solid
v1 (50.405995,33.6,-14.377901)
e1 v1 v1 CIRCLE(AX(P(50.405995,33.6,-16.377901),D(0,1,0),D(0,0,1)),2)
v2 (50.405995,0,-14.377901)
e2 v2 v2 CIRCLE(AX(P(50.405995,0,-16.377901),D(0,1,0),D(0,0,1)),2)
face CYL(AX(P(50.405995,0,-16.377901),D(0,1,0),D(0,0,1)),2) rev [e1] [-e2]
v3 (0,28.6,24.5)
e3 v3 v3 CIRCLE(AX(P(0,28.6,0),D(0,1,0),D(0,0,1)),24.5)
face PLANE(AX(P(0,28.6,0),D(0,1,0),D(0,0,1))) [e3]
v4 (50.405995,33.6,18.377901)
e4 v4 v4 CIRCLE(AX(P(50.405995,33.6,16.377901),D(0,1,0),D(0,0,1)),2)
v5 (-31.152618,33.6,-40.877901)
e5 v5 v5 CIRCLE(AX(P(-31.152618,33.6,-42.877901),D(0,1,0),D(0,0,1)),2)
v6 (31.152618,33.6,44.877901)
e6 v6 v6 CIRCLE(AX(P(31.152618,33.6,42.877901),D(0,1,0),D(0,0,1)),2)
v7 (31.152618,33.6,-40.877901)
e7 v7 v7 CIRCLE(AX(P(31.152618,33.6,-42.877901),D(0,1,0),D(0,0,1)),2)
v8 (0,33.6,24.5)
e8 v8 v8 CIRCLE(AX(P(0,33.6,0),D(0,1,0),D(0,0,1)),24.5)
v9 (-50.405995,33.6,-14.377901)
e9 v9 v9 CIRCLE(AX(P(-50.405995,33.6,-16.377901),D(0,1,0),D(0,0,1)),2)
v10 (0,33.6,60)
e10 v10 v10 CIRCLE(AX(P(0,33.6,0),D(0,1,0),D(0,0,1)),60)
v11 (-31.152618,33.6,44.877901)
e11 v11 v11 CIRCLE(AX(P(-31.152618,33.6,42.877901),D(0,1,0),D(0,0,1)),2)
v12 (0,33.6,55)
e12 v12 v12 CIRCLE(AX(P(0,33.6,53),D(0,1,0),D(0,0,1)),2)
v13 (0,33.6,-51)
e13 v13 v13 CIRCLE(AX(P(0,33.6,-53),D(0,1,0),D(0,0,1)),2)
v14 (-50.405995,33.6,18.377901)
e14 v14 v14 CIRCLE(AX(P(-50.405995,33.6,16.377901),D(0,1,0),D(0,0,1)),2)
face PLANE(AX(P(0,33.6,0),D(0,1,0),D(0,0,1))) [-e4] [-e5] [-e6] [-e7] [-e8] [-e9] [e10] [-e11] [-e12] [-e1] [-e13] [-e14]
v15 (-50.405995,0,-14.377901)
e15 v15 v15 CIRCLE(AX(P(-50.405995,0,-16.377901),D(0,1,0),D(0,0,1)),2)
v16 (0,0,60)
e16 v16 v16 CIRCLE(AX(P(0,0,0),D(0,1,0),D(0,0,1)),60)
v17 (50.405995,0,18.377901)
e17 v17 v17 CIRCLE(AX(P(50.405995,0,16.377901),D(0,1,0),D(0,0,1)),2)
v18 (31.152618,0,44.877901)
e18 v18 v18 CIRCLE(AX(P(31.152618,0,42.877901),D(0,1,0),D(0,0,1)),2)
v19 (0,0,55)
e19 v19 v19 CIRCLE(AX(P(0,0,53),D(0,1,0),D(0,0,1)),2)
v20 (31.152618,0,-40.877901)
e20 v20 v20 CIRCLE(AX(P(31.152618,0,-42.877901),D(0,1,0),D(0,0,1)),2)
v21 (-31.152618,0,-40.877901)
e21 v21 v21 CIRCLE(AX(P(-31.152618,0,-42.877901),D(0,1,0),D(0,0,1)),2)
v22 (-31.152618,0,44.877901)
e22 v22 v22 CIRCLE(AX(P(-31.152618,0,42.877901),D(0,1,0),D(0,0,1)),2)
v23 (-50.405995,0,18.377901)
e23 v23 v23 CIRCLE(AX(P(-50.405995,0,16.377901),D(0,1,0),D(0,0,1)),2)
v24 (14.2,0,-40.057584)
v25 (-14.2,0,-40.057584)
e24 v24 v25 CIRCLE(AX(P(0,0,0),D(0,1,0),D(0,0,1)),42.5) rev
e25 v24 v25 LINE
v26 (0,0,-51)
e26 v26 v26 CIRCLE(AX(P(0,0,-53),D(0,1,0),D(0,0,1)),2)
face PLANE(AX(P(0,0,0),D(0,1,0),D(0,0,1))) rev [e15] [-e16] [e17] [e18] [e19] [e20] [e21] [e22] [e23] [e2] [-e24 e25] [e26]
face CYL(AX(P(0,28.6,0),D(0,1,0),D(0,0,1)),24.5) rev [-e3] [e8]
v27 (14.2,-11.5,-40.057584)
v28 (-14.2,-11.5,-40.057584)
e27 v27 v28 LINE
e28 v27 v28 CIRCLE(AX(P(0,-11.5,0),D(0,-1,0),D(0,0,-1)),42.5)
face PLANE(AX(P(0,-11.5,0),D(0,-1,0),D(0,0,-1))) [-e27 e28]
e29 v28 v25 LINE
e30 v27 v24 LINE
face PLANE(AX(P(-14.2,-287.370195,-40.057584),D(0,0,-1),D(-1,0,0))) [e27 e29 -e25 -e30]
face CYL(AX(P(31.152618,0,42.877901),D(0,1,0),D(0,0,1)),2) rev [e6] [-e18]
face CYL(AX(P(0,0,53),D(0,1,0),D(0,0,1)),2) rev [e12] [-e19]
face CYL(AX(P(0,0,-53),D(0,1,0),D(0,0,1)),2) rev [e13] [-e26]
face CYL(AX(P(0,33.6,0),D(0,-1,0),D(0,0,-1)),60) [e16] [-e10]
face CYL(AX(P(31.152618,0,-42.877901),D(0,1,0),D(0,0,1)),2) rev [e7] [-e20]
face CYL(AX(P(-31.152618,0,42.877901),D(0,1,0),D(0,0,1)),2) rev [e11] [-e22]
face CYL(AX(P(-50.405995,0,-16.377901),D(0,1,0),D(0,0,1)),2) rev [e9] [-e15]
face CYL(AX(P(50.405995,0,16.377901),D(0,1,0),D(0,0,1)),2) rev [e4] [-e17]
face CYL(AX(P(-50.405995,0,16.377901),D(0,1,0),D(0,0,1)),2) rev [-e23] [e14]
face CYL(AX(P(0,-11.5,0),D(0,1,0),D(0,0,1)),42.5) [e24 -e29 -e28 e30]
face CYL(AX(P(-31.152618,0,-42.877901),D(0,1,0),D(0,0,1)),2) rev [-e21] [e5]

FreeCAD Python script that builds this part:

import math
import FreeCAD as App
import Part
import Sketcher
Q = App.Units.Quantity

doc = App.newDocument("Part")
body = doc.addObject("PartDesign::Body", "Body")

# Sketch on XZ plane
sketch1 = doc.addObject("Sketcher::SketchObject", "Sketch")
body.addObject(sketch1)
sketch1.AttachmentSupport = (doc.XZ_Plane, [""])
sketch1.MapMode = "FlatFace"
sketch1.addGeometry(Part.Circle(App.Vector(0, 0, 0), App.Vector(0, 0, 1), 60), False)
sketch1.addConstraint([
    Sketcher.Constraint("Coincident", 0, 3, -1, 1),
    Sketcher.Constraint("Diameter", 0, Q("120 mm")),
])
pad1 = doc.addObject("PartDesign::Pad", "Pad")
body.addObject(pad1)
pad1.Profile = sketch1
pad1.Length = 33.6
pad1.Reversed = True

# Sketch on XZ plane
sketch2 = doc.addObject("Sketcher::SketchObject", "Sketch001")
body.addObject(sketch2)
sketch2.AttachmentSupport = (doc.XZ_Plane, [""])
sketch2.MapMode = "FlatFace"
sketch2.AttachmentOffset = App.Placement(App.Vector(0, 0, -33.6), App.Rotation())
sketch2.addGeometry([
    Part.Circle(App.Vector(0, -53, 0), App.Vector(0, 0, 1), 2),  # 0
    Part.Circle(App.Vector(31.152618, -42.877901, 0), App.Vector(0, 0, 1), 2),  # 1
    Part.Circle(App.Vector(50.405995, -16.377901, 0), App.Vector(0, 0, 1), 2),  # 2
    Part.Circle(App.Vector(50.405995, 16.377901, 0), App.Vector(0, 0, 1), 2),  # 3
    Part.Circle(App.Vector(31.152618, 42.877901, 0), App.Vector(0, 0, 1), 2),  # 4
    Part.Circle(App.Vector(0, 53, 0), App.Vector(0, 0, 1), 2),  # 5
    Part.Circle(App.Vector(-31.152618, 42.877901, 0), App.Vector(0, 0, 1), 2),  # 6
    Part.Circle(App.Vector(-50.405995, 16.377901, 0), App.Vector(0, 0, 1), 2),  # 7
    Part.Circle(App.Vector(-50.405995, -16.377901, 0), App.Vector(0, 0, 1), 2),  # 8
    Part.Circle(App.Vector(-31.152618, -42.877901, 0), App.Vector(0, 0, 1), 2),  # 9
], False)
sketch2.addConstraint([
    Sketcher.Constraint("Equal", 0, 1),
    Sketcher.Constraint("Equal", 1, 2),
    Sketcher.Constraint("Equal", 2, 3),
    Sketcher.Constraint("Equal", 3, 4),
    Sketcher.Constraint("Equal", 4, 5),
    Sketcher.Constraint("Equal", 5, 6),
    Sketcher.Constraint("Equal", 6, 7),
    Sketcher.Constraint("Equal", 7, 8),
    Sketcher.Constraint("Equal", 8, 9),
    Sketcher.Constraint("Symmetric", 0, 3, 5, 3, -1, 1),
    Sketcher.Constraint("Symmetric", 1, 3, 6, 3, -1, 1),
    Sketcher.Constraint("Symmetric", 2, 3, 7, 3, -1, 1),
    Sketcher.Constraint("Symmetric", 3, 3, 8, 3, -1, 1),
    Sketcher.Constraint("Symmetric", 4, 3, 9, 3, -1, 1),
    Sketcher.Constraint("Symmetric", 4, 3, 6, 3, -2),
    Sketcher.Constraint("Symmetric", 3, 3, 7, 3, -2),
    Sketcher.Constraint("PointOnObject", 0, 3, -2),
    Sketcher.Constraint("Diameter", 0, Q("4 mm")),
    Sketcher.Constraint("DistanceY", 0, 3, -1, 1, Q("53 mm")),
    Sketcher.Constraint("DistanceY", 1, 3, 2, 3, Q("26.5 mm")),
    Sketcher.Constraint("DistanceY", 1, 3, -1, 1, Q("42.877901 mm")),
    Sketcher.Constraint("DistanceX", -1, 1, 1, 3, Q("31.152618 mm")),
    Sketcher.Constraint("DistanceX", 7, 3, 3, 3, Q("100.811991 mm")),
])
pocket1 = doc.addObject("PartDesign::Pocket", "Pocket")
body.addObject(pocket1)
pocket1.Profile = sketch2
pocket1.Type = "ThroughAll"
pocket1.Midplane = True

# Sketch on XZ plane
sketch3 = doc.addObject("Sketcher::SketchObject", "Sketch002")
body.addObject(sketch3)
sketch3.AttachmentSupport = (doc.XZ_Plane, [""])
sketch3.MapMode = "FlatFace"
sketch3.AttachmentOffset = App.Placement(App.Vector(0, 0, -33.6), App.Rotation())
sketch3.addGeometry(Part.Circle(App.Vector(0, 0, 0), App.Vector(0, 0, 1), 24.5), False)
sketch3.addConstraint([
    Sketcher.Constraint("Coincident", 0, 3, -1, 1),
    Sketcher.Constraint("Diameter", 0, Q("49 mm")),
])
pocket2 = doc.addObject("PartDesign::Pocket", "Pocket001")
body.addObject(pocket2)
pocket2.Profile = sketch3
pocket2.Length = 5
pocket2.Reversed = True

# Sketch on XZ plane
sketch4 = doc.addObject("Sketcher::SketchObject", "Sketch003")
body.addObject(sketch4)
sketch4.AttachmentSupport = (doc.XZ_Plane, [""])
sketch4.MapMode = "FlatFace"
sketch4.addGeometry(Part.Circle(App.Vector(0, 0, 0), App.Vector(0, 0, 1), 42.5), False)
sketch4.addConstraint([
    Sketcher.Constraint("Coincident", 0, 3, -1, 1),
    Sketcher.Constraint("Diameter", 0, Q("85 mm")),
])
pad2 = doc.addObject("PartDesign::Pad", "Pad001")
body.addObject(pad2)
pad2.Profile = sketch4
pad2.Length = 11.5

# Sketch on XZ plane
sketch5 = doc.addObject("Sketcher::SketchObject", "Sketch004")
body.addObject(sketch5)
sketch5.AttachmentSupport = (doc.XZ_Plane, [""])
sketch5.MapMode = "FlatFace"
sketch5.AttachmentOffset = App.Placement(App.Vector(0, 0, 11.5), App.Rotation())
sketch5.addGeometry([
    Part.LineSegment(App.Vector(14.2, -40.057584, 0), App.Vector(-14.2, -40.057584, 0)),
    Part.ArcOfCircle(Part.Circle(App.Vector(0, 0, 0), App.Vector(0, 0, 1), 42.5), math.radians(-109.518891), math.radians(-70.481109)),
], False)
sketch5.addConstraint([
    Sketcher.Constraint("Coincident", 0, 1, 1, 2),
    Sketcher.Constraint("Coincident", 1, 1, 0, 2),
    Sketcher.Constraint("Horizontal", 0),
    Sketcher.Constraint("Coincident", 1, 3, -1, 1),
    Sketcher.Constraint("Radius", 1, Q("42.5 mm")),
    Sketcher.Constraint("DistanceX", 0, 2, 0, 1, Q("28.4 mm")),
])
pocket3 = doc.addObject("PartDesign::Pocket", "Pocket002")
body.addObject(pocket3)
pocket3.Profile = sketch5
pocket3.Type = "TwoLengths"
pocket3.Length = 97.093756
pocket3.Length2 = 11.5
pocket3.Reversed = True

doc.recompute()
